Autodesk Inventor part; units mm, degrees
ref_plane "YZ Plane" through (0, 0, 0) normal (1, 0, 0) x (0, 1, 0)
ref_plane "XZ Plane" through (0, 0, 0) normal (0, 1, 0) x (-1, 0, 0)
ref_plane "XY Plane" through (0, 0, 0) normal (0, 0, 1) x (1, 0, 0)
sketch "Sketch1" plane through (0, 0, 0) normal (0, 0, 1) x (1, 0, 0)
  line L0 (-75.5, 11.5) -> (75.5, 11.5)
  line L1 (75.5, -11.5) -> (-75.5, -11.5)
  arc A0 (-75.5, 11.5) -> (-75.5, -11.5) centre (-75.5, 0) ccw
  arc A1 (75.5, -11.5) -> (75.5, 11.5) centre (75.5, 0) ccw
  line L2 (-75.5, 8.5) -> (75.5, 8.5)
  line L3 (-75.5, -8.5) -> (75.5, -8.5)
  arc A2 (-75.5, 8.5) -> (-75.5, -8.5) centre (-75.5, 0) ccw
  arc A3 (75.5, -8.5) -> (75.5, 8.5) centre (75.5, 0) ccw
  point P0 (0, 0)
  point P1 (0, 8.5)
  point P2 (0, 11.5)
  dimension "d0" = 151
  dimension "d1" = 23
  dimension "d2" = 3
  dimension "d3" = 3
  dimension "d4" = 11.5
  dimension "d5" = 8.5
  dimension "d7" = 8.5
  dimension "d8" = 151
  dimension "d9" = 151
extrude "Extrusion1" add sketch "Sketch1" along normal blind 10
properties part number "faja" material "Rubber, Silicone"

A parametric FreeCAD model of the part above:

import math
import FreeCAD as App
import Part
import Sketcher

V = App.Vector

doc = App.newDocument("Part")
body = doc.addObject("PartDesign::Body", "Body")

# Sketch on XY plane
sketch1 = body.newObject("Sketcher::SketchObject", "Sketch")
sketch1.AttachmentSupport = (doc.getObject("XY_Plane"), [""])
sketch1.MapMode = "FlatFace"
sketch1.addGeometry([
    Part.LineSegment(V(76, 12, 0), V(-76, 12, 0)),  # 0
    Part.ArcOfCircle(Part.Circle(V(-76, 0, 0), V(0, 0, 1), 12), math.radians(90), math.radians(270)),  # 1
    Part.LineSegment(V(-76, -12, 0), V(76, -12, 0)),  # 2
    Part.ArcOfCircle(Part.Circle(V(76, 0, 0), V(0, 0, 1), 12), math.radians(-90), math.radians(90)),  # 3
    Part.ArcOfCircle(Part.Circle(V(-76, 0, 0), V(0, 0, 1), 8), math.radians(90), math.radians(270)),  # 4
    Part.LineSegment(V(-76, 8, 0), V(76, 8, 0)),  # 5
    Part.ArcOfCircle(Part.Circle(V(76, 0, 0), V(0, 0, 1), 8), math.radians(-90), math.radians(90)),  # 6
    Part.LineSegment(V(76, -8, 0), V(-76, -8, 0)),  # 7
], False)
sketch1.addConstraint([
    Sketcher.Constraint("Tangent", 0, 2, 1, 1),
    Sketcher.Constraint("Tangent", 1, 2, 2, 1),
    Sketcher.Constraint("Tangent", 2, 2, 3, 1),
    Sketcher.Constraint("Tangent", 3, 2, 0, 1),
    Sketcher.Constraint("Tangent", 4, 1, 5, 1),
    Sketcher.Constraint("Tangent", 5, 2, 6, 2),
    Sketcher.Constraint("Tangent", 6, 1, 7, 1),
    Sketcher.Constraint("Tangent", 7, 2, 4, 2),
    Sketcher.Constraint("Horizontal", 0),
    Sketcher.Constraint("Horizontal", 2),
    Sketcher.Constraint("Horizontal", 5),
    Sketcher.Constraint("Horizontal", 7),
    Sketcher.Constraint("Coincident", 4, 3, 1, 3),
    Sketcher.Constraint("Symmetric", 1, 3, 3, 3, -1, 1),
    Sketcher.Constraint("Vertical", 6, 3, 2, 2),
    Sketcher.Constraint("Radius", 1, 11.5),
    Sketcher.Constraint("Radius", 4, 8.5),
    Sketcher.Constraint("DistanceX", 0, 2, 0, 1, 151.0),
])
pad1 = body.newObject("PartDesign::Pad", "Pad")
pad1.Profile = sketch1
pad1.Length = 10

doc.recompute()
